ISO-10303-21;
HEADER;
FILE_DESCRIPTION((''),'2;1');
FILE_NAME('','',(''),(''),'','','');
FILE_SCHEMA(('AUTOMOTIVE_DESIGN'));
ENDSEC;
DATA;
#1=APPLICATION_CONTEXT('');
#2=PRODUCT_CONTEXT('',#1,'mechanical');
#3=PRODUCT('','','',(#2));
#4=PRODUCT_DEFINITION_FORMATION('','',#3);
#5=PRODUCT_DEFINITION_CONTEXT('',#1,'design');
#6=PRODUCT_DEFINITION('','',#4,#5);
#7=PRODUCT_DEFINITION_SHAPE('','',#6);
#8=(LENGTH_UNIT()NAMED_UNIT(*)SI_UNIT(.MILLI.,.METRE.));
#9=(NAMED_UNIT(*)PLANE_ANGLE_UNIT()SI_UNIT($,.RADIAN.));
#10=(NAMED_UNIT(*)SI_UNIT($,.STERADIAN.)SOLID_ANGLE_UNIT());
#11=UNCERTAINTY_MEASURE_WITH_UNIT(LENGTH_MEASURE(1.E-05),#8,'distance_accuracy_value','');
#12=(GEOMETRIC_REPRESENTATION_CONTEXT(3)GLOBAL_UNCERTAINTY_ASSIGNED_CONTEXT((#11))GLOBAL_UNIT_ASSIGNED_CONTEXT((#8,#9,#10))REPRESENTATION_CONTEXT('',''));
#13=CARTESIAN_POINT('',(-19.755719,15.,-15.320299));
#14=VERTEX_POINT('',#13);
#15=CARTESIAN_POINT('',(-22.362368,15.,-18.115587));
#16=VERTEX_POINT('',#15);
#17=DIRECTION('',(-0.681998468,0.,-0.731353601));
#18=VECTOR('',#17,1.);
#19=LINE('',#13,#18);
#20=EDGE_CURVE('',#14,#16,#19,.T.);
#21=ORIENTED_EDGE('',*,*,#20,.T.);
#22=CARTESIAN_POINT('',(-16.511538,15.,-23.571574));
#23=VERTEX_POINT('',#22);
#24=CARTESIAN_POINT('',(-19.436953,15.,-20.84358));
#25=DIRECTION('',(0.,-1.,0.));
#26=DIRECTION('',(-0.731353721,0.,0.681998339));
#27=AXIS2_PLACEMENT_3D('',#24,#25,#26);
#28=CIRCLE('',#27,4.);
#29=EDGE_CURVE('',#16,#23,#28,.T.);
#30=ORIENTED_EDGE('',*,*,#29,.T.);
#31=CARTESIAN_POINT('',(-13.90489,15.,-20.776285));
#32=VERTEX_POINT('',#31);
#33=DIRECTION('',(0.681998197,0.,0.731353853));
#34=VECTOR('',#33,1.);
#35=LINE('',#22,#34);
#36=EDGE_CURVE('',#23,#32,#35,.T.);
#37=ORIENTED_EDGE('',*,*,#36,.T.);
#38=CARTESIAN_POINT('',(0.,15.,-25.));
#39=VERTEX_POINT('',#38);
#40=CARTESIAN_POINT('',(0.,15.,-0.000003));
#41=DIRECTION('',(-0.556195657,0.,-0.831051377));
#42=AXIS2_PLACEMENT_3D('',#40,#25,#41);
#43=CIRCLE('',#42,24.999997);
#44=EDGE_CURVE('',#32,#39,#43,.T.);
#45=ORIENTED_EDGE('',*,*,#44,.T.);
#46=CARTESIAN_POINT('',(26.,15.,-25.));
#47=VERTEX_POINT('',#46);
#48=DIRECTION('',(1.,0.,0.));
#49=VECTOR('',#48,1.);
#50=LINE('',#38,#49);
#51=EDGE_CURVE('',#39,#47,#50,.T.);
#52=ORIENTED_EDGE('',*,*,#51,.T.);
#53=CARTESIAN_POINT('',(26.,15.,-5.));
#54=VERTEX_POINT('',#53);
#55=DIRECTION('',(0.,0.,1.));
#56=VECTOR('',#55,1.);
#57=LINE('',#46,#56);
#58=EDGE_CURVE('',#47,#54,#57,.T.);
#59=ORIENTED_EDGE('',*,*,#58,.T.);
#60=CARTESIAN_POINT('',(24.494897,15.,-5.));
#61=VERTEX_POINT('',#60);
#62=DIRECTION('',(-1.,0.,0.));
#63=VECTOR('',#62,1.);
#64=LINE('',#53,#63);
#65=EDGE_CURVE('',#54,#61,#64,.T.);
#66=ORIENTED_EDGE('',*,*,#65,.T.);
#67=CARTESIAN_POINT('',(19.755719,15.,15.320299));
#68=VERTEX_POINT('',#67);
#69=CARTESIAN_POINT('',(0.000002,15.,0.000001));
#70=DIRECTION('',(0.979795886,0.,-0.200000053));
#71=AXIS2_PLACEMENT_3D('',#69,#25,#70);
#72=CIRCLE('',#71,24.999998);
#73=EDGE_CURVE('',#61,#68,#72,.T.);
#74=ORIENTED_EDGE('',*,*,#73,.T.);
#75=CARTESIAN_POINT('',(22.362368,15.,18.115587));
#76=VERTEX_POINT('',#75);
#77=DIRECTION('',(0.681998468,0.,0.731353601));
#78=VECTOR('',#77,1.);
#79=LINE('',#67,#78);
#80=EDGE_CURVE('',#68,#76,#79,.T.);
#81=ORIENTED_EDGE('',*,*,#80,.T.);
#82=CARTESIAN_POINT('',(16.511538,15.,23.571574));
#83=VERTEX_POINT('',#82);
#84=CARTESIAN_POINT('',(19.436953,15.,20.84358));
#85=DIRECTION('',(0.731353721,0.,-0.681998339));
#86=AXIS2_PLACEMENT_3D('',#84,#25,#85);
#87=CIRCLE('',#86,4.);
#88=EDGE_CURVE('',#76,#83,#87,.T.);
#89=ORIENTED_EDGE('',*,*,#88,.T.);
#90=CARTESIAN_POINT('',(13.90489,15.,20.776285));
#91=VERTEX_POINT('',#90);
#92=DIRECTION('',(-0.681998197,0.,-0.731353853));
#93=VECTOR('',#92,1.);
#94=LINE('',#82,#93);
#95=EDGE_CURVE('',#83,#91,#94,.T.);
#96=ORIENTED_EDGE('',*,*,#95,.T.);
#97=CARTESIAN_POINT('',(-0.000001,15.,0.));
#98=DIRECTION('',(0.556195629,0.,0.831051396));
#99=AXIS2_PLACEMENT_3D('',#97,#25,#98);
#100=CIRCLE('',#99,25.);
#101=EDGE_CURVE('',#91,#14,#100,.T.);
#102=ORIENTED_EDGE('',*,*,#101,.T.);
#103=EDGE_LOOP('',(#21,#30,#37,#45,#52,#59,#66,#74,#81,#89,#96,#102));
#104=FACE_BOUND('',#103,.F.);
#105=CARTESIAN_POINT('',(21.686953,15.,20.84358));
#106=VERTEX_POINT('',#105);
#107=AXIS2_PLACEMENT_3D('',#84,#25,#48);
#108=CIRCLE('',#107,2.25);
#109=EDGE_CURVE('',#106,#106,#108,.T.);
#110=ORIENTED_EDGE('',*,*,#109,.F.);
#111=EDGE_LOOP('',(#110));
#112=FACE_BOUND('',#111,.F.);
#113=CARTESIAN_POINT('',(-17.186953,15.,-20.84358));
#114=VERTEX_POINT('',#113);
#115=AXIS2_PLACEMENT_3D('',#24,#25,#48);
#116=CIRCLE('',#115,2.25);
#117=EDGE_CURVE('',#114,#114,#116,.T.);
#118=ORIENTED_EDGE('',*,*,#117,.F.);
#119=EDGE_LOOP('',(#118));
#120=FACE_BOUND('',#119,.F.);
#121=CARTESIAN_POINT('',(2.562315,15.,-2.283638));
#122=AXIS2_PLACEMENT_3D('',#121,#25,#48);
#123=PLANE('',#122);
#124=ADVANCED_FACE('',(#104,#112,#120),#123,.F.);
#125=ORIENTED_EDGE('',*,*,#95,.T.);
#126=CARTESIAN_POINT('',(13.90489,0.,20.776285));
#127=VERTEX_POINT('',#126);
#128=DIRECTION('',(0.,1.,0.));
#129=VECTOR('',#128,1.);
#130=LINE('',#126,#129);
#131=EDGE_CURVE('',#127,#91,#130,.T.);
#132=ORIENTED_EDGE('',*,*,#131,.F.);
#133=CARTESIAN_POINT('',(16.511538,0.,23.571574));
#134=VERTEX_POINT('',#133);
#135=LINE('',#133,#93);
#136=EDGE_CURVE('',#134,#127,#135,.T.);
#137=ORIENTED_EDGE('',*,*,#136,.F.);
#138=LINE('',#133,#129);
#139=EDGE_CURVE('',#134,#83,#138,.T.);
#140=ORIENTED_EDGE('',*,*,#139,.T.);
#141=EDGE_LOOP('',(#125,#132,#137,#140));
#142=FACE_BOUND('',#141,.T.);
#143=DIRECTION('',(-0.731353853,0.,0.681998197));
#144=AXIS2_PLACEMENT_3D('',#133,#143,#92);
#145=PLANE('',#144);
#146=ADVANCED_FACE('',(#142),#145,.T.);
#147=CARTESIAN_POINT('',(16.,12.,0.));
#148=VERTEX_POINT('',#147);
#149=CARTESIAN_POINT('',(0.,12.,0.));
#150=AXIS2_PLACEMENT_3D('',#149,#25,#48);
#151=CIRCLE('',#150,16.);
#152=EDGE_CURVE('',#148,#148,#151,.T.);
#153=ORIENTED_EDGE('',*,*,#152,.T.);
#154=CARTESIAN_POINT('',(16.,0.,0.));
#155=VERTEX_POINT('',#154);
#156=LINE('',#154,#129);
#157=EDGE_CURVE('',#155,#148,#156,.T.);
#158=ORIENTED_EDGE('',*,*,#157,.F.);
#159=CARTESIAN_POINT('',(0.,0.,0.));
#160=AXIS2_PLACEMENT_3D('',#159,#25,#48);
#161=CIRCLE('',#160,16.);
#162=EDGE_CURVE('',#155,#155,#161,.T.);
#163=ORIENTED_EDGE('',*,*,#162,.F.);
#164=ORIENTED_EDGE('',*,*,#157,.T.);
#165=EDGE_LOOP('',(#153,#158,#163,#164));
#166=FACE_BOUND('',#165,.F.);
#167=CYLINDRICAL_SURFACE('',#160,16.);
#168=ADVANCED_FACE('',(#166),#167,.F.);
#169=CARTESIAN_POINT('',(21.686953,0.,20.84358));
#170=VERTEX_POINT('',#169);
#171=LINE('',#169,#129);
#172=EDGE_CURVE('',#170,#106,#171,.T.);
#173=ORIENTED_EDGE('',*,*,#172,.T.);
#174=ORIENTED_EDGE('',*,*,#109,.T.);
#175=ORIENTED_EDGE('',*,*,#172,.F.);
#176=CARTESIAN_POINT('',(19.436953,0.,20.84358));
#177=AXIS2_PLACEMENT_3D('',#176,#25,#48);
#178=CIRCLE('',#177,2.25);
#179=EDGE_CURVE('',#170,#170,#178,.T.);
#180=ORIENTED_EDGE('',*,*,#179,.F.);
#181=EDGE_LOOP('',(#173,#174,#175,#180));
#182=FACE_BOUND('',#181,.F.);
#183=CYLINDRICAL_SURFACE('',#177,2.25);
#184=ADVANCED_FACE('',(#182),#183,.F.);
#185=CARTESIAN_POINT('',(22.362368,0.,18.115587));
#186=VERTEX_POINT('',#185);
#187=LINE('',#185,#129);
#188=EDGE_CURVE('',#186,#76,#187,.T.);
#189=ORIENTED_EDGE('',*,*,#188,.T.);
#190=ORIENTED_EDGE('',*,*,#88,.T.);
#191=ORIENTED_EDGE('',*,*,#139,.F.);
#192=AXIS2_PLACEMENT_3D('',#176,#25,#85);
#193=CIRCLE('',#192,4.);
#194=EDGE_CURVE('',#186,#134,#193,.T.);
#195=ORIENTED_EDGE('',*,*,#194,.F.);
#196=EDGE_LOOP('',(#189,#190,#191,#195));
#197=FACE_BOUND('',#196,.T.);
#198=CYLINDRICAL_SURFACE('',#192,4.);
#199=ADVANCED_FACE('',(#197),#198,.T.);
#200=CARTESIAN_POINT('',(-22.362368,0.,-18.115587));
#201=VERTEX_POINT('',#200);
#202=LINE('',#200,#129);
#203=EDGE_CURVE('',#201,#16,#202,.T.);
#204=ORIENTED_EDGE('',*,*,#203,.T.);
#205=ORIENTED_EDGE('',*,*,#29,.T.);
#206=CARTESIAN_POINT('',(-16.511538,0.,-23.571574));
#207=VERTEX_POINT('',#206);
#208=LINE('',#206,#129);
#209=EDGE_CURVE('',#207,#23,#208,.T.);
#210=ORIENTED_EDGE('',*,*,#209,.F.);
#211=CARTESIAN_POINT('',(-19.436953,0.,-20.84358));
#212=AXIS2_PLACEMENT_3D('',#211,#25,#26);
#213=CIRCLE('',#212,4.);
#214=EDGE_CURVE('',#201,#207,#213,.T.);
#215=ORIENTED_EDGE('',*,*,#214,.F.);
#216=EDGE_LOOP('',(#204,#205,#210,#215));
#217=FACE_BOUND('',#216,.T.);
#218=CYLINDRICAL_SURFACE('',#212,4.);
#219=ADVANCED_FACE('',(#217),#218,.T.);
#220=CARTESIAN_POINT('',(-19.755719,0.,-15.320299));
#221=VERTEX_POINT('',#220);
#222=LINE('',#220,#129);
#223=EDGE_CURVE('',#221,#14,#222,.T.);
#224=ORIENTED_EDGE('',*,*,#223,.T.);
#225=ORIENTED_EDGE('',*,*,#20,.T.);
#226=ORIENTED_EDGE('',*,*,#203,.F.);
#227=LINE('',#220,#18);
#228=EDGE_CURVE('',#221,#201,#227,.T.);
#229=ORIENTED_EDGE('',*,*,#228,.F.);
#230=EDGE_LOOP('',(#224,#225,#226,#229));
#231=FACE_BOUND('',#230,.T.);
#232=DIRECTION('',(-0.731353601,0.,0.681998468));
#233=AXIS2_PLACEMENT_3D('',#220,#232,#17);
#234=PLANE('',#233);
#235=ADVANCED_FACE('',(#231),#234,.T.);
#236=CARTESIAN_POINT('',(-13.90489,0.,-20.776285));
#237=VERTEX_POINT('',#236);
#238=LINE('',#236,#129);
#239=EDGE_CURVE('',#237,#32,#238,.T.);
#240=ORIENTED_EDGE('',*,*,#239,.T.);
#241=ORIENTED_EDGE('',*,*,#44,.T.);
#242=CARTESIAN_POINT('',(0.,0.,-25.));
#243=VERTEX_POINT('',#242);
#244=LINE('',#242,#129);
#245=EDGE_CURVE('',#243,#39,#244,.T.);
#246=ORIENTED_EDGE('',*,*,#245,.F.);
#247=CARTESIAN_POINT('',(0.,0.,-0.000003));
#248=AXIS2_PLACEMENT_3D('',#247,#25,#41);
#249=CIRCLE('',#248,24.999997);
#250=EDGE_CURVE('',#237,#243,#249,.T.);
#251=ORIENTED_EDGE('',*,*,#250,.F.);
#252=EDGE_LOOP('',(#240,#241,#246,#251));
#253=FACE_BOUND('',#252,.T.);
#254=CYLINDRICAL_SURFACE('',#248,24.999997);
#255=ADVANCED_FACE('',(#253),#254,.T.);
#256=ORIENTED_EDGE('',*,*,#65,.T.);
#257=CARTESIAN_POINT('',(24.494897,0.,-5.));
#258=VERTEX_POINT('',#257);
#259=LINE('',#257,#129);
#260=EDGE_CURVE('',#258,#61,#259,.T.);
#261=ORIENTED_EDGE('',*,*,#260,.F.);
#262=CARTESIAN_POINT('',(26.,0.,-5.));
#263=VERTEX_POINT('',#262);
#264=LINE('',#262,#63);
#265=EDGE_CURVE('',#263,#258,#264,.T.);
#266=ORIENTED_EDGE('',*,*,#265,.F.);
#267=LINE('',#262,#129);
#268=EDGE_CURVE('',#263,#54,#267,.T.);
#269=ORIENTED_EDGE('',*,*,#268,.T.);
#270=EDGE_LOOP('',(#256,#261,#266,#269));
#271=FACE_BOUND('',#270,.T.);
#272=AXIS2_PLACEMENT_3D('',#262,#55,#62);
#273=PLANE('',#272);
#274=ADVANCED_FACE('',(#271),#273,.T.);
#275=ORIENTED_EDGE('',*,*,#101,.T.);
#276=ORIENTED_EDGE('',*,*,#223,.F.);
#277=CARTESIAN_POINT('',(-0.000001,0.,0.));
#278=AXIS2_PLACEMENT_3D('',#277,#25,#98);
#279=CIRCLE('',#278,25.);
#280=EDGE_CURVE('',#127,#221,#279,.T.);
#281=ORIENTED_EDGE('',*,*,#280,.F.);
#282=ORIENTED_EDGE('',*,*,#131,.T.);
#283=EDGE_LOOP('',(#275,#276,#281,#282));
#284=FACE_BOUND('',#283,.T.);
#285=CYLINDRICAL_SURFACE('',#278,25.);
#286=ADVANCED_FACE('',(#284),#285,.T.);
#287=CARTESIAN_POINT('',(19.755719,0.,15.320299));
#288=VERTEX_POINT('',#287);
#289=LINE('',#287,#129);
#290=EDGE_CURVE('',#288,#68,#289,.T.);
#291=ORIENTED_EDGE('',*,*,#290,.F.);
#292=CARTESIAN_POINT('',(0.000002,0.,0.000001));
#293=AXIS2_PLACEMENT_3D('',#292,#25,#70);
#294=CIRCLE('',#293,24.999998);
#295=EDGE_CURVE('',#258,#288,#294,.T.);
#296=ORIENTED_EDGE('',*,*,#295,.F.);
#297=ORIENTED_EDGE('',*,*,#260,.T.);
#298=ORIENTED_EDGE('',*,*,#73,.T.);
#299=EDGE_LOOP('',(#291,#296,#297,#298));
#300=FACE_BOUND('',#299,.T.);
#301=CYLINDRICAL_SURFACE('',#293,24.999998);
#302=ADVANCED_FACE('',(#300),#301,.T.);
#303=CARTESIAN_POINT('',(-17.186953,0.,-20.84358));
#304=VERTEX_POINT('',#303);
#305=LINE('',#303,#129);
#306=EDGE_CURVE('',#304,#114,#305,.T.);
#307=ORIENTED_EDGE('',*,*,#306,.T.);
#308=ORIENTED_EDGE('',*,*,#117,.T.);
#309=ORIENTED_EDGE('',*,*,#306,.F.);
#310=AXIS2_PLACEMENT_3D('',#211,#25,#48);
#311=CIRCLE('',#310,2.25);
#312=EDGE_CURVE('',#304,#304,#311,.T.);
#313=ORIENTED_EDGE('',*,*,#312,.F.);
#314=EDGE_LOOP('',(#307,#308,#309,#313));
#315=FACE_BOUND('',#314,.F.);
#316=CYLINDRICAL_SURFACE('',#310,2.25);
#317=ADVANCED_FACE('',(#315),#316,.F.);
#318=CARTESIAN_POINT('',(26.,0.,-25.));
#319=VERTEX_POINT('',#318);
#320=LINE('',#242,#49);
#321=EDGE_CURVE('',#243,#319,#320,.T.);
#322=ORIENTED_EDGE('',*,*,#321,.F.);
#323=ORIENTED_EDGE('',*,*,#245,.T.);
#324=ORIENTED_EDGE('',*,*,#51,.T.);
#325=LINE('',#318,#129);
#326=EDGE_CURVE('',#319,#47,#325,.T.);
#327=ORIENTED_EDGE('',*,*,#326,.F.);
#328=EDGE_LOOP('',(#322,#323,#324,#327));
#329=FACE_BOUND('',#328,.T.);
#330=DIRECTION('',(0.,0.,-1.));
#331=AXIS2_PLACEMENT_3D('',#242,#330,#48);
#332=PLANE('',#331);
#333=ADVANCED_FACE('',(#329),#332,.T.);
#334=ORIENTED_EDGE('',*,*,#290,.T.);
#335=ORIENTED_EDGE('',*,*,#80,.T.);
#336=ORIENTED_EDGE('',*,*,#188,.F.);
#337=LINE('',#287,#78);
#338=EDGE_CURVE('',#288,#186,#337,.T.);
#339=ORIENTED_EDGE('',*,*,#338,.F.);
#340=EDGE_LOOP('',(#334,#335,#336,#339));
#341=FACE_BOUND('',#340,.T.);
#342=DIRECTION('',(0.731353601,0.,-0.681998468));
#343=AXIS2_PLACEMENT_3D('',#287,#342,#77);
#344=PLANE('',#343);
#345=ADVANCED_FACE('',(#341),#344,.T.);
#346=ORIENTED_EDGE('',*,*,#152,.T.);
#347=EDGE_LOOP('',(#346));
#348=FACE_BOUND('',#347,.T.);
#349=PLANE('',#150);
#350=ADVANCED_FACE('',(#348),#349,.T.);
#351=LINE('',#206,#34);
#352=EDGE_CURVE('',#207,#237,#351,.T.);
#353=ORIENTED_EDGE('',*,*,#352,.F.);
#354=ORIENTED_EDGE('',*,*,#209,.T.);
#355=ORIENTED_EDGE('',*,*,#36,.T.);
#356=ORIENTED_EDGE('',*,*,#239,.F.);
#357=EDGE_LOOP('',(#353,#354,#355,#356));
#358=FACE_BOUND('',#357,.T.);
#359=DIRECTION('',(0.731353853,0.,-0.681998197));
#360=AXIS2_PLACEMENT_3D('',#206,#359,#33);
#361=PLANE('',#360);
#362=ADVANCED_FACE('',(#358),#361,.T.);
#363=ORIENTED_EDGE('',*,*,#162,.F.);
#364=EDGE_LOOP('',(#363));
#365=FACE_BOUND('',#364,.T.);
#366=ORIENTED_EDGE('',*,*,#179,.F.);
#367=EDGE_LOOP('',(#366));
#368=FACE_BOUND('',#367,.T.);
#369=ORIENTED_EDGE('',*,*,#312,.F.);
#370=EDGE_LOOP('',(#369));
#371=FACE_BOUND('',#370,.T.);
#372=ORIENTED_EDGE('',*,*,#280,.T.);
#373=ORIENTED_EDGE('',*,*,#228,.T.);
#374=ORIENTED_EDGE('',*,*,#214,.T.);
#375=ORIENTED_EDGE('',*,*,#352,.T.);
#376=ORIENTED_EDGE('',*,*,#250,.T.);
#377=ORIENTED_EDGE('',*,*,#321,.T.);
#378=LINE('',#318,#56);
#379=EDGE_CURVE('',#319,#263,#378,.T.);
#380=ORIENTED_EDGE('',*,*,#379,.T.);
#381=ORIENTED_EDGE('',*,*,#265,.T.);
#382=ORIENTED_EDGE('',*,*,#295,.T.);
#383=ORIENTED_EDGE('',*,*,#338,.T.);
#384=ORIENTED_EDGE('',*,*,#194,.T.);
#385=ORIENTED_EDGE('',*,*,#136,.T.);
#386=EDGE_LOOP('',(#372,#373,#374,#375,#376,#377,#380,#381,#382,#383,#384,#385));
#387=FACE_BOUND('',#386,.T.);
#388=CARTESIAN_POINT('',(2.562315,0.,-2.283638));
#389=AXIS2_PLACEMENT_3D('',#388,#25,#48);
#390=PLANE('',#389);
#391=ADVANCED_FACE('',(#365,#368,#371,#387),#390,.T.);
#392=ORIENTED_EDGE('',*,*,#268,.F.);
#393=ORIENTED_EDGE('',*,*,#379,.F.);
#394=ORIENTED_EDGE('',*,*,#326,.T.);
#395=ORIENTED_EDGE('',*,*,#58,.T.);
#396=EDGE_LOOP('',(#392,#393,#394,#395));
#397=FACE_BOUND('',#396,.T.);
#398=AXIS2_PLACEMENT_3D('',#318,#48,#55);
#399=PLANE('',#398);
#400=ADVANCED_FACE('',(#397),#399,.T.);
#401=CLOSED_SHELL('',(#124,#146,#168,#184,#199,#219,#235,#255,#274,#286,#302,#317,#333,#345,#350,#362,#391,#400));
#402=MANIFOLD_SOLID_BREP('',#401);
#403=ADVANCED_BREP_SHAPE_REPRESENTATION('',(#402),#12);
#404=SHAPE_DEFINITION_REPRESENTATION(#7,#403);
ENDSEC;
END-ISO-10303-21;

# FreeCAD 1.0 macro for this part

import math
import FreeCAD as App
import Part
import Sketcher
from FreeCAD import Vector
Q = App.Units.Quantity

doc = App.newDocument("Part")
body = doc.addObject("PartDesign::Body", "Body")

sketch1 = body.newObject("Sketcher::SketchObject", "Sketch")
sketch1.AttachmentSupport = (doc.getObject("XZ_Plane"), [""])
sketch1.MapMode = "FlatFace"
sketch1.addGeometry([
    Part.LineSegment(Vector(26, -5, 0), Vector(24.494897, -5, 0)),
    Part.ArcOfCircle(Part.Circle(Vector(0.000002, 0.000001, 0), Vector(0, 0, 1), 24.999998), math.radians(-11.536962), math.radians(37.793106)),
    Part.LineSegment(Vector(19.755719, 15.320299, 0), Vector(22.362368, 18.115587, 0)),
    Part.ArcOfCircle(Part.Circle(Vector(19.436953, 20.84358, 0), Vector(0, 0, 1), 4), math.radians(-42.999998), math.radians(137.000001)),
    Part.LineSegment(Vector(16.511538, 23.571574, 0), Vector(13.90489, 20.776285, 0)),
    Part.ArcOfCircle(Part.Circle(Vector(-0.000001, 0, 0), Vector(0, 0, 1), 25), math.radians(56.206894), math.radians(217.793107)),
    Part.LineSegment(Vector(-19.755719, -15.320299, 0), Vector(-22.362368, -18.115587, 0)),
    Part.ArcOfCircle(Part.Circle(Vector(-19.436953, -20.84358, 0), Vector(0, 0, 1), 4), math.radians(137.000002), math.radians(317.000001)),
    Part.LineSegment(Vector(-16.511538, -23.571574, 0), Vector(-13.90489, -20.776285, 0)),
    Part.ArcOfCircle(Part.Circle(Vector(0, -0.000003, 0), Vector(0, 0, 1), 24.999997), math.radians(-123.793108), math.radians(-89.999999)),
    Part.LineSegment(Vector(0, -25, 0), Vector(26, -25, 0)),
    Part.LineSegment(Vector(26, -25, 0), Vector(26, -5, 0)),
    Part.Circle(Vector(-19.436953, -20.84358, 0), Vector(0, 0, 1), 2.25),
    Part.Circle(Vector(19.436953, 20.84358, 0), Vector(0, 0, 1), 2.25),
], False)
sketch1.addConstraint([
    Sketcher.Constraint("Coincident", 0, 2, 1, 1),
    Sketcher.Constraint("Coincident", 1, 2, 2, 1),
    Sketcher.Constraint("Tangent", 2, 2, 3, 1),
    Sketcher.Constraint("Tangent", 3, 2, 4, 1),
    Sketcher.Constraint("Coincident", 4, 2, 5, 1),
    Sketcher.Constraint("Coincident", 5, 2, 6, 1),
    Sketcher.Constraint("Tangent", 6, 2, 7, 1),
    Sketcher.Constraint("Tangent", 7, 2, 8, 1),
    Sketcher.Constraint("Coincident", 8, 2, 9, 1),
    Sketcher.Constraint("Tangent", 9, 2, 10, 1),
    Sketcher.Constraint("Coincident", 10, 2, 11, 1),
    Sketcher.Constraint("Coincident", 11, 2, 0, 1),
    Sketcher.Constraint("Horizontal", 0),
    Sketcher.Constraint("Horizontal", 10),
    Sketcher.Constraint("Vertical", 11),
    Sketcher.Constraint("Coincident", 1, 3, -1, 1),
    Sketcher.Constraint("Coincident", 5, 3, -1, 1),
    Sketcher.Constraint("Coincident", 9, 3, -1, 1),
    Sketcher.Constraint("Coincident", 12, 3, 7, 3),
    Sketcher.Constraint("Coincident", 13, 3, 3, 3),
    Sketcher.Constraint("Equal", 1, 5),
    Sketcher.Constraint("Equal", 3, 7),
    Sketcher.Constraint("Equal", 1, 9),
    Sketcher.Constraint("Equal", 12, 13),
    Sketcher.Constraint("Symmetric", 3, 3, 7, 3, -1, 1),
    Sketcher.Constraint("Parallel", 2, 4),
    Sketcher.Constraint("Parallel", 4, 6),
    Sketcher.Constraint("Parallel", 6, 8),
    Sketcher.Constraint("Equal", 2, 4),
    Sketcher.Constraint("Radius", 3, 4.0),
    Sketcher.Constraint("Radius", 5, 25.0),
    Sketcher.Constraint("Diameter", 12, 4.5),
    Sketcher.Constraint("DistanceX", 10, 1, 10, 2, 26.0),
    Sketcher.Constraint("DistanceY", 11, 1, 11, 2, 20.0),
    Sketcher.Constraint("Angle", 2, Q("46.999992 deg")),
    Sketcher.Constraint("DistanceY", 2, 2, 4, 2, 2.660698),
])
pad1 = body.newObject("PartDesign::Pad", "Pad")
pad1.Profile = sketch1
pad1.Length = 15
pad1.Reversed = True

sketch2 = body.newObject("Sketcher::SketchObject", "Sketch001")
sketch2.AttachmentSupport = (doc.getObject("XZ_Plane"), [""])
sketch2.MapMode = "FlatFace"
sketch2.addGeometry(Part.Circle(Vector(0, 0, 0), Vector(0, 0, 1), 16), False)
sketch2.addConstraint([
    Sketcher.Constraint("Coincident", 0, 3, -1, 1),
    Sketcher.Constraint("Diameter", 0, 32.0),
])
pocket1 = body.newObject("PartDesign::Pocket", "Pocket")
pocket1.Profile = sketch2
pocket1.Length = 12

doc.recompute()
